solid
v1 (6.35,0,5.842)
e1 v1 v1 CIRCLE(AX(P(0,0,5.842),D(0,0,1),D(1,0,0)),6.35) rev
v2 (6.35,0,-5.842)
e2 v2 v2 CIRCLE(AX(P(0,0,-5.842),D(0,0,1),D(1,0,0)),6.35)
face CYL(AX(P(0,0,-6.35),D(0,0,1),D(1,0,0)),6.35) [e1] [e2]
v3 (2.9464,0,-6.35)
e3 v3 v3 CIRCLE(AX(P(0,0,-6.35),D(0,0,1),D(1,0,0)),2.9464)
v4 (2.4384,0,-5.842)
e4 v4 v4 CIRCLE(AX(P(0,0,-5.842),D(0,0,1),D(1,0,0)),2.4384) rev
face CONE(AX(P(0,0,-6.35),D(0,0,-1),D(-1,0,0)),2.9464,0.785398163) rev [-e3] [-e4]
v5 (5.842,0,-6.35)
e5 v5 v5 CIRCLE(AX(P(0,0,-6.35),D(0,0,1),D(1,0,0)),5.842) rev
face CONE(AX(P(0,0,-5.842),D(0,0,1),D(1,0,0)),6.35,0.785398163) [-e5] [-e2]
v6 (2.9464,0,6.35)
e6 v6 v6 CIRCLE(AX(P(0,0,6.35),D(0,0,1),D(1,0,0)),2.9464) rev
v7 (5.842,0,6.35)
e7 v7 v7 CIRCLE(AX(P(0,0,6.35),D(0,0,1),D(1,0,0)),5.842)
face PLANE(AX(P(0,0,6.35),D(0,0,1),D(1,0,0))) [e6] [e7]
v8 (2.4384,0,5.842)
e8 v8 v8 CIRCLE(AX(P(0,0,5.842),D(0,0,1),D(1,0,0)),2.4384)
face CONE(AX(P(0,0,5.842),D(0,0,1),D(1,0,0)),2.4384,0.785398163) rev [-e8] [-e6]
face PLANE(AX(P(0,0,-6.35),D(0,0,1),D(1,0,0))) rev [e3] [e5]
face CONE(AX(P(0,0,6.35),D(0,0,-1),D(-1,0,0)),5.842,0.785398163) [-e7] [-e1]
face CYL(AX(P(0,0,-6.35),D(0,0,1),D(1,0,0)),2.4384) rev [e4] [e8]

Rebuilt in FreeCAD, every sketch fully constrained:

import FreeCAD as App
import Part
import Sketcher

V = App.Vector
Q = App.Units.Quantity


def edges_at(feature, points):
    """Names of the edges that pass closest to the given points."""
    edges = feature.Shape.Edges
    near = lambda p: min(range(len(edges)), key=lambda i: edges[i].distToShape(Part.Vertex(*p))[0])
    return sorted({f"Edge{near(p) + 1}" for p in points})

doc = App.newDocument("Part")
body = doc.addObject("PartDesign::Body", "Body")

# Sketch on XY plane
sketch1 = doc.addObject("Sketcher::SketchObject", "Sketch")
body.addObject(sketch1)
sketch1.AttachmentSupport = (doc.XY_Plane, [""])
sketch1.MapMode = "FlatFace"
sketch1.addGeometry([
    Part.Circle(V(0, 0, 0), V(0, 0, 1), 6.35),
    Part.Circle(V(0, 0, 0), V(0, 0, 1), 2.4384),
], False)
sketch1.addConstraint([
    Sketcher.Constraint("Coincident", 0, 3, -1, 1),
    Sketcher.Constraint("Coincident", 1, 3, -1, 1),
    Sketcher.Constraint("Diameter", 0, Q("0.5 in")),
    Sketcher.Constraint("Diameter", 1, Q("0.192 in")),
])
pad1 = doc.addObject("PartDesign::Pad", "Pad")
body.addObject(pad1)
pad1.Profile = sketch1
pad1.Type = "TwoLengths"
pad1.Length = Q("0.25 in")
pad1.Length2 = Q("0.25 in")
doc.recompute()

chamfer = doc.addObject("PartDesign::Chamfer", "Chamfer")
body.addObject(chamfer)
chamfer.Base = (pad1, edges_at(pad1, [
    (-6.35, 0, -6.35),
    (-2.438, 0, -6.35),
    (-6.35, 0, 6.35),
    (-2.438, 0, 6.35),
]))
chamfer.Size = Q("0.02 in")

doc.recompute()
